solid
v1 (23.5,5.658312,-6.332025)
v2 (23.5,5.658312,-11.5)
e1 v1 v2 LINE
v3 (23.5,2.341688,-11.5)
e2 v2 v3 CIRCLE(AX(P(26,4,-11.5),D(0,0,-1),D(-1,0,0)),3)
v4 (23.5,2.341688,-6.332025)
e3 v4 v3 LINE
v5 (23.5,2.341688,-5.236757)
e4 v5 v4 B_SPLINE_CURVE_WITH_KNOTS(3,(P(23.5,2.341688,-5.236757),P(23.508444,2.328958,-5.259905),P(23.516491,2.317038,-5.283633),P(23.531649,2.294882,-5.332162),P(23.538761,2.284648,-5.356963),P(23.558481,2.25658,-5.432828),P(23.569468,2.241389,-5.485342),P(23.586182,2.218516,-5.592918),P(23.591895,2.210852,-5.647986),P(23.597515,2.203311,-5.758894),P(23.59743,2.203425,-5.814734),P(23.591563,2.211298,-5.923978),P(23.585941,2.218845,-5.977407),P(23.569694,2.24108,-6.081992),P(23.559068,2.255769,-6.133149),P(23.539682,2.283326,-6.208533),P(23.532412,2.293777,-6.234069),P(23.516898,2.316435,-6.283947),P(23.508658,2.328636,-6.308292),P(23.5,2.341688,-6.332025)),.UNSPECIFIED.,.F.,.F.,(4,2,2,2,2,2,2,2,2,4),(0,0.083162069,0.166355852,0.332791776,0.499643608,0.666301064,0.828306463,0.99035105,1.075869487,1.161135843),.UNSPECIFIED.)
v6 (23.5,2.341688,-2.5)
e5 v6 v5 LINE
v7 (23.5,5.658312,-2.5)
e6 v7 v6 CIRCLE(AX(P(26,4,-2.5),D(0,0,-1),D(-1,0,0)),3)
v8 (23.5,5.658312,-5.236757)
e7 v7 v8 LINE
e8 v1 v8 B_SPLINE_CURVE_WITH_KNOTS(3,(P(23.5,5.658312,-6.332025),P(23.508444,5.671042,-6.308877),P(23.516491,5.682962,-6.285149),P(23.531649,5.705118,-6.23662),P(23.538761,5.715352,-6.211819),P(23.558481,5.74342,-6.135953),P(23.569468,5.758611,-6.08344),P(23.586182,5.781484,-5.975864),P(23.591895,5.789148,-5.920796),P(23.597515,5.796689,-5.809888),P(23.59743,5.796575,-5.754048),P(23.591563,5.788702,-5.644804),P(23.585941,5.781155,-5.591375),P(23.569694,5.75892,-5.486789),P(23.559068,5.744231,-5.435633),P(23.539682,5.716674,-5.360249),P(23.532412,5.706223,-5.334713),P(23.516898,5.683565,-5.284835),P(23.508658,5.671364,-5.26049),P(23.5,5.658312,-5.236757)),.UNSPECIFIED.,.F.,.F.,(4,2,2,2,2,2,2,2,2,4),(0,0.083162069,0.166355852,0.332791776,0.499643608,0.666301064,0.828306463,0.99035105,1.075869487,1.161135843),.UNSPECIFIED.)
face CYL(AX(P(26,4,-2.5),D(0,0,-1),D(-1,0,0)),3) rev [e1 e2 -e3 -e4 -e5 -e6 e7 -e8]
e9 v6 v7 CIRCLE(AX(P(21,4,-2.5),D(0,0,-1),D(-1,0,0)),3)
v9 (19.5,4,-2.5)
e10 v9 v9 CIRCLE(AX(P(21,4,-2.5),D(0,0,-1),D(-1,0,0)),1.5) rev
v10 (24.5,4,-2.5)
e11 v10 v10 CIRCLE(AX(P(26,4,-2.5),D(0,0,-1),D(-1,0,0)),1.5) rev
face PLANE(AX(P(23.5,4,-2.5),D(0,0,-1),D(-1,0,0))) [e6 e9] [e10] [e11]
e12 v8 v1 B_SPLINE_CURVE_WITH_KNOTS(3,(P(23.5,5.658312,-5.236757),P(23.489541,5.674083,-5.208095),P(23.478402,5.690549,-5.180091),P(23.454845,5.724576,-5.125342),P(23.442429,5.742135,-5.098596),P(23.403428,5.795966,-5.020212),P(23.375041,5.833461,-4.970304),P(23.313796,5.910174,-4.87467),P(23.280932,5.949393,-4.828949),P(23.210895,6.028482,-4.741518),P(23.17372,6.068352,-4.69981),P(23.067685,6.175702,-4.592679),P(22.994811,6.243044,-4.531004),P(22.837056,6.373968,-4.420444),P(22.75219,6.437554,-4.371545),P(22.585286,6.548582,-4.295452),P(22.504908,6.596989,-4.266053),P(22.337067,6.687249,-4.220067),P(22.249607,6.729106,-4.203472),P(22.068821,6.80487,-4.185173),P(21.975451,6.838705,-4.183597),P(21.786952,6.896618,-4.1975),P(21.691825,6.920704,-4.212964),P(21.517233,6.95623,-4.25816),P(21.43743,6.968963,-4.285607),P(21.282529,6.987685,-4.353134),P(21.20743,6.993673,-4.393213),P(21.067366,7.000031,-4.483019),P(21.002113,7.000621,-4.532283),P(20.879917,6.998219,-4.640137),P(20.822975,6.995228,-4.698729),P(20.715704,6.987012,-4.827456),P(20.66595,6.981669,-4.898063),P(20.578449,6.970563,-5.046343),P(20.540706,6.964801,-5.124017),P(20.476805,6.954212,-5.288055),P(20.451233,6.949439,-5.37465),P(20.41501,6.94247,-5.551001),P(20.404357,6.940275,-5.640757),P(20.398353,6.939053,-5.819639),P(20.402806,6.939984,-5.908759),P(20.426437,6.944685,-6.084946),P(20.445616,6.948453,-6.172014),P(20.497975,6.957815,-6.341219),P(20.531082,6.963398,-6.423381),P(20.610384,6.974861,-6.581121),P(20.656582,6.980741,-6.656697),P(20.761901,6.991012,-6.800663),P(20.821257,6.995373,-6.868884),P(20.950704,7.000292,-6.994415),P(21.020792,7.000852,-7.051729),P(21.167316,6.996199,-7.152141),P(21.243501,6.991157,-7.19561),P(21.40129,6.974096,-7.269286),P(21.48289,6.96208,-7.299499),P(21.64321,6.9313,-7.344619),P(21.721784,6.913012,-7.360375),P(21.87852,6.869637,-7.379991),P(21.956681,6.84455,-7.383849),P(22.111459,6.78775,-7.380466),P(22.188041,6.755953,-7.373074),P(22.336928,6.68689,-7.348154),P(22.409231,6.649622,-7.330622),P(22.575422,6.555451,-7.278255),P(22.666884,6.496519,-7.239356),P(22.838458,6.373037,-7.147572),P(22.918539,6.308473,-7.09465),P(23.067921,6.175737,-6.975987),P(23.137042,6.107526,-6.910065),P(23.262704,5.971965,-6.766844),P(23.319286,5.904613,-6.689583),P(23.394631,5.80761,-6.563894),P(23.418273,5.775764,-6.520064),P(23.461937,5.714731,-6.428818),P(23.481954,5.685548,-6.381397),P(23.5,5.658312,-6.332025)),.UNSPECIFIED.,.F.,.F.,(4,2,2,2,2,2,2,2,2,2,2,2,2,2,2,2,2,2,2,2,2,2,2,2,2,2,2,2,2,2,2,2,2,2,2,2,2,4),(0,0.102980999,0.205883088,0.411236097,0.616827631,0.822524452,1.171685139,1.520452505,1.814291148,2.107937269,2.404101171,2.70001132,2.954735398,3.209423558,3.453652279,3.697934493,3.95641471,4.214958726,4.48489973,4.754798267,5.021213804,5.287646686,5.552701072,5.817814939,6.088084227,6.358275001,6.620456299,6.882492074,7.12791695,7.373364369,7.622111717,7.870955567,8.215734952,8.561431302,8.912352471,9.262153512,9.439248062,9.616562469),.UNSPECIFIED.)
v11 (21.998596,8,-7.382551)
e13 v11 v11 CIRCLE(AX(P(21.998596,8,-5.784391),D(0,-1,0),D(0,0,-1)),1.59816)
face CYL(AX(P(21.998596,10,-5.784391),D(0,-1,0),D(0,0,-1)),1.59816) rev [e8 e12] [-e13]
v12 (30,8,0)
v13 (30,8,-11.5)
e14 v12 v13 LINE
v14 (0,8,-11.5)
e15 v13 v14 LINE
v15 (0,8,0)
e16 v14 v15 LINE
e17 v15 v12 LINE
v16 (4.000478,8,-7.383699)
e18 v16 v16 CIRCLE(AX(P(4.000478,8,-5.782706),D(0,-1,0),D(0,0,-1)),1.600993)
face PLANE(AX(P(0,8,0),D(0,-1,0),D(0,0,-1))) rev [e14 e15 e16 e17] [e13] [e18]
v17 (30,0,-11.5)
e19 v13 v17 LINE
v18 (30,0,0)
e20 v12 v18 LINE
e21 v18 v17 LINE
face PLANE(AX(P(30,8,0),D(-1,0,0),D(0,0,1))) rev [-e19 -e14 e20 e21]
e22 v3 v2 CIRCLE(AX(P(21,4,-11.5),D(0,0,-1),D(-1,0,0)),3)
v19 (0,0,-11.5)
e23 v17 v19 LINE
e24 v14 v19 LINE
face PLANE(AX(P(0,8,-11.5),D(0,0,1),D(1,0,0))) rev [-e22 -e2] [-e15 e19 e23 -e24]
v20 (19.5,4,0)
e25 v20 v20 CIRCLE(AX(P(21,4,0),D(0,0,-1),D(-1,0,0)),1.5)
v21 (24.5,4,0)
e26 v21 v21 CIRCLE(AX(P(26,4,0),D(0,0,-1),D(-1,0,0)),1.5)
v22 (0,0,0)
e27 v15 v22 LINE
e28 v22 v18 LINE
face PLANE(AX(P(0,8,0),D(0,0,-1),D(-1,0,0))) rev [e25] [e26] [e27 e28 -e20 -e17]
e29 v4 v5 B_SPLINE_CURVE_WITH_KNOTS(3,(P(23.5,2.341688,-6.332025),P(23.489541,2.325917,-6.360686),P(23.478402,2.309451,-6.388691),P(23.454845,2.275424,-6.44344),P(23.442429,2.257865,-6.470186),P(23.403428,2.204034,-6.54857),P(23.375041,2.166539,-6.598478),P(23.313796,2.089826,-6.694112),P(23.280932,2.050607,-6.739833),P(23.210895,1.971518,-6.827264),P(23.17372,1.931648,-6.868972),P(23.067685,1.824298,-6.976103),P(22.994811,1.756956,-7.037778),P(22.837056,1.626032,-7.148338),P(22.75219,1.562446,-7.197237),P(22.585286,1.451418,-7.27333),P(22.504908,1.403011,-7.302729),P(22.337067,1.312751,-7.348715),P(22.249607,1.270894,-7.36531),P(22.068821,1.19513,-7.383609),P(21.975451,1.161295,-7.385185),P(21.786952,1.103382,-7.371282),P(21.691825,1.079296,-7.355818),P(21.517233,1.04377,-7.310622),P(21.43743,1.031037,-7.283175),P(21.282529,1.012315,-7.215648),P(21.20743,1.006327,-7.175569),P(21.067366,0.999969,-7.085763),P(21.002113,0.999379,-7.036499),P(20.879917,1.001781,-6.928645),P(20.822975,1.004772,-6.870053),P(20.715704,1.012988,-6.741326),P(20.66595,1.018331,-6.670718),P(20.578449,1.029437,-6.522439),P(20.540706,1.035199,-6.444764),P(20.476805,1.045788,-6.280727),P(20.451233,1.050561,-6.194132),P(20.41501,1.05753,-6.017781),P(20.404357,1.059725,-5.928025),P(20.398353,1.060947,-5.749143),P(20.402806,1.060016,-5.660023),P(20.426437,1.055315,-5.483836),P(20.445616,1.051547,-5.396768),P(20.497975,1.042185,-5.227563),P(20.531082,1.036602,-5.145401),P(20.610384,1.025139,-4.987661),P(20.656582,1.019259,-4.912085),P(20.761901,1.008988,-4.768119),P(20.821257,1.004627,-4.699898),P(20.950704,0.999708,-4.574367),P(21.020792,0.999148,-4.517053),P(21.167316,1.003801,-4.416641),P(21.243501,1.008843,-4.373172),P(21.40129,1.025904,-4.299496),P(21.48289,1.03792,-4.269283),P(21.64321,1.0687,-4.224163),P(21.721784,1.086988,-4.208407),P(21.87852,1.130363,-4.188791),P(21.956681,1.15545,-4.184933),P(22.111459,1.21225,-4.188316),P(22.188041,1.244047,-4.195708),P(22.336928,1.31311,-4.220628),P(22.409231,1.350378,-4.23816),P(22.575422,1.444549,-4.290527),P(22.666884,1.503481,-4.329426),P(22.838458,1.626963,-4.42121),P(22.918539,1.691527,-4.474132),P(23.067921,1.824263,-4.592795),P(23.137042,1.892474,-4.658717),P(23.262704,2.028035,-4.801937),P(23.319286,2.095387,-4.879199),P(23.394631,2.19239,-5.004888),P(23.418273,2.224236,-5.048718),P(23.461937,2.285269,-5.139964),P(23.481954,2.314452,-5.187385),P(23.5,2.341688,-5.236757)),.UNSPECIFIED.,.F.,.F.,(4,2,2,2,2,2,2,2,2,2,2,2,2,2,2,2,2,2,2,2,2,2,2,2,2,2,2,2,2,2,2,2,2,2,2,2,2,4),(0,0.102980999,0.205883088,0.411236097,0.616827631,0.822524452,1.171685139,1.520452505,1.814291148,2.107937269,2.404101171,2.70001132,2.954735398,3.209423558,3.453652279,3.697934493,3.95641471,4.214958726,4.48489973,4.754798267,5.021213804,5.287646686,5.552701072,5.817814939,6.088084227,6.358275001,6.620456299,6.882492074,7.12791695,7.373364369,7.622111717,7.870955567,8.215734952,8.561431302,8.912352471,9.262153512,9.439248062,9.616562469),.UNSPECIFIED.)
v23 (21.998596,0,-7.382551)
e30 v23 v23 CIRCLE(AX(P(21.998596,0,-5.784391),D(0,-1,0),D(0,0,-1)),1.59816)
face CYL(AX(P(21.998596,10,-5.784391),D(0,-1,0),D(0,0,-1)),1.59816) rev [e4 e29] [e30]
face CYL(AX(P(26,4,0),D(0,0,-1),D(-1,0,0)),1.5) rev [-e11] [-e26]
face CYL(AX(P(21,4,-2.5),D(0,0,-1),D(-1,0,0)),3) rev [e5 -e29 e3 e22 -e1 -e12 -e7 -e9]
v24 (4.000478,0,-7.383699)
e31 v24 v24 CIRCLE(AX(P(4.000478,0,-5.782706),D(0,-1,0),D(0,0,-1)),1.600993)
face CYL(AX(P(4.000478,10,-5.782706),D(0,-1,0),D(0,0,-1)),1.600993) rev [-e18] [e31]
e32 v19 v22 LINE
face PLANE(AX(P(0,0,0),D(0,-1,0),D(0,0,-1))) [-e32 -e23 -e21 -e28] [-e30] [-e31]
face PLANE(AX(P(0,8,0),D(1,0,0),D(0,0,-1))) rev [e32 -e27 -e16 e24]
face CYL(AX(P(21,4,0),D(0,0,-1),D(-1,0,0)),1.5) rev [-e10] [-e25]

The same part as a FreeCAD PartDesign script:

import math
import FreeCAD as App
import Part
import Sketcher
Q = App.Units.Quantity

doc = App.newDocument("Part")
params = doc.addObject("Spreadsheet::Sheet", "Params")
for row, (alias, value) in enumerate([
    ("sketch1_width", "30 mm"),
    ("sketch1_height", "11.5 mm"),
    ("pad1_length", "8 mm"),
    ("sketch2_diameter", "3 mm"),
    ("pocket2_length", "10 mm"),
    ("sketch4_radius", "3 mm"),
    ("pocket3_length", "9 mm"),
], start=1):
    params.set(f"A{row}", alias)
    params.set(f"B{row}", "=" + value)
    params.setAlias(f"B{row}", alias)

body = doc.addObject("PartDesign::Body", "Body")

# Sketch on XZ plane
sketch1 = doc.addObject("Sketcher::SketchObject", "Sketch")
body.addObject(sketch1)
sketch1.AttachmentSupport = (doc.XZ_Plane, [""])
sketch1.MapMode = "FlatFace"
sketch1.addGeometry(Part.LineSegment(App.Vector(0, -11.5, 0), App.Vector(0, 0, 0)), False)
sketch1.addGeometry(Part.LineSegment(App.Vector(0, 0, 0), App.Vector(30, 0, 0)), False)
sketch1.addGeometry(Part.LineSegment(App.Vector(30, 0, 0), App.Vector(30, -11.5, 0)), False)
sketch1.addGeometry(Part.LineSegment(App.Vector(30, -11.5, 0), App.Vector(0, -11.5, 0)), False)
sketch1.addConstraint(Sketcher.Constraint("Coincident", 0, 2, 1, 1))
sketch1.addConstraint(Sketcher.Constraint("Coincident", 1, 2, 2, 1))
sketch1.addConstraint(Sketcher.Constraint("Coincident", 2, 2, 3, 1))
sketch1.addConstraint(Sketcher.Constraint("Coincident", 3, 2, 0, 1))
sketch1.addConstraint(Sketcher.Constraint("Vertical", 0))
sketch1.addConstraint(Sketcher.Constraint("Horizontal", 1))
sketch1.addConstraint(Sketcher.Constraint("Vertical", 2))
sketch1.addConstraint(Sketcher.Constraint("Horizontal", 3))
sketch1.addConstraint(Sketcher.Constraint("Coincident", 0, 2, -1, 1))
sketch1.addConstraint(Sketcher.Constraint("DistanceX", 1, 1, 1, 2, Q("30 mm")))
sketch1.addConstraint(Sketcher.Constraint("DistanceY", 0, 1, 0, 2, Q("11.5 mm")))
sketch1.setExpression("Constraints[9]", "Params.sketch1_width")
sketch1.setExpression("Constraints[10]", "Params.sketch1_height")
pad1 = doc.addObject("PartDesign::Pad", "Pad")
body.addObject(pad1)
pad1.Profile = sketch1
pad1.setExpression("Length", "Params.pad1_length")
pad1.Reversed = True

# Sketch on XY plane
sketch2 = doc.addObject("Sketcher::SketchObject", "Sketch001")
body.addObject(sketch2)
sketch2.AttachmentSupport = (doc.XY_Plane, [""])
sketch2.MapMode = "FlatFace"
sketch2.AttachmentOffset = App.Placement(App.Vector(0, 0, -11.5), App.Rotation())
sketch2.addGeometry(Part.Circle(App.Vector(21, 4, 0), App.Vector(0, 0, 1), 1.5), False)
sketch2.addGeometry(Part.Circle(App.Vector(26, 4, 0), App.Vector(0, 0, 1), 1.5), False)
sketch2.addConstraint(Sketcher.Constraint("Equal", 0, 1))
sketch2.addConstraint(Sketcher.Constraint("Horizontal", 0, 3, 1, 3))
sketch2.addConstraint(Sketcher.Constraint("Diameter", 0, Q("3 mm")))
sketch2.addConstraint(Sketcher.Constraint("DistanceX", -1, 1, 0, 3, Q("21 mm")))
sketch2.addConstraint(Sketcher.Constraint("DistanceY", -1, 1, 0, 3, Q("4 mm")))
sketch2.addConstraint(Sketcher.Constraint("DistanceX", -1, 1, 1, 3, Q("26 mm")))
sketch2.setExpression("Constraints[2]", "Params.sketch2_diameter")
pocket1 = doc.addObject("PartDesign::Pocket", "Pocket")
body.addObject(pocket1)
pocket1.Profile = sketch2
pocket1.Type = "ThroughAll"
pocket1.Reversed = True

# Sketch on XZ plane
sketch3 = doc.addObject("Sketcher::SketchObject", "Sketch002")
body.addObject(sketch3)
sketch3.AttachmentSupport = (doc.XZ_Plane, [""])
sketch3.MapMode = "FlatFace"
sketch3.addGeometry(Part.Circle(App.Vector(21.998596, -5.784391, 0), App.Vector(0, 0, 1), 1.59816), False)
sketch3.addGeometry(Part.Circle(App.Vector(4.000478, -5.782706, 0), App.Vector(0, 0, 1), 1.600993), False)
sketch3.addConstraint(Sketcher.Constraint("Diameter", 0, Q("3.196321 mm")))
sketch3.addConstraint(Sketcher.Constraint("Diameter", 1, Q("3.201987 mm")))
sketch3.addConstraint(Sketcher.Constraint("DistanceY", 0, 3, -1, 1, Q("5.784391 mm")))
sketch3.addConstraint(Sketcher.Constraint("DistanceX", 1, 3, 0, 3, Q("17.998119 mm")))
sketch3.addConstraint(Sketcher.Constraint("DistanceX", -1, 1, 0, 3, Q("21.998596 mm")))
sketch3.addConstraint(Sketcher.Constraint("DistanceY", 1, 3, -1, 1, Q("5.782706 mm")))
pocket2 = doc.addObject("PartDesign::Pocket", "Pocket001")
body.addObject(pocket2)
pocket2.Profile = sketch3
pocket2.setExpression("Length", "Params.pocket2_length")

# Sketch on XY plane
sketch4 = doc.addObject("Sketcher::SketchObject", "Sketch003")
body.addObject(sketch4)
sketch4.AttachmentSupport = (doc.XY_Plane, [""])
sketch4.MapMode = "FlatFace"
sketch4.AttachmentOffset = App.Placement(App.Vector(0, 0, -11.5), App.Rotation())
sketch4.addGeometry(Part.ArcOfCircle(Part.Circle(App.Vector(26, 4, 0), App.Vector(0, 0, 1), 3), math.radians(-146.44269), math.radians(146.44269)), False)
sketch4.addGeometry(Part.ArcOfCircle(Part.Circle(App.Vector(21, 4, 0), App.Vector(0, 0, 1), 3), math.radians(33.55731), math.radians(326.44269)), False)
sketch4.addConstraint(Sketcher.Constraint("Coincident", 0, 1, 1, 2))
sketch4.addConstraint(Sketcher.Constraint("Coincident", 1, 1, 0, 2))
sketch4.addConstraint(Sketcher.Constraint("Equal", 0, 1))
sketch4.addConstraint(Sketcher.Constraint("Horizontal", 0, 3, 1, 3))
sketch4.addConstraint(Sketcher.Constraint("Radius", 0, Q("3 mm")))
sketch4.addConstraint(Sketcher.Constraint("DistanceX", -1, 1, 0, 3, Q("26 mm")))
sketch4.addConstraint(Sketcher.Constraint("DistanceY", -1, 1, 0, 3, Q("4 mm")))
sketch4.addConstraint(Sketcher.Constraint("DistanceX", -1, 1, 1, 3, Q("21 mm")))
sketch4.setExpression("Constraints[4]", "Params.sketch4_radius")
pocket3 = doc.addObject("PartDesign::Pocket", "Pocket002")
body.addObject(pocket3)
pocket3.Profile = sketch4
pocket3.setExpression("Length", "Params.pocket3_length")
pocket3.Reversed = True

doc.recompute()
